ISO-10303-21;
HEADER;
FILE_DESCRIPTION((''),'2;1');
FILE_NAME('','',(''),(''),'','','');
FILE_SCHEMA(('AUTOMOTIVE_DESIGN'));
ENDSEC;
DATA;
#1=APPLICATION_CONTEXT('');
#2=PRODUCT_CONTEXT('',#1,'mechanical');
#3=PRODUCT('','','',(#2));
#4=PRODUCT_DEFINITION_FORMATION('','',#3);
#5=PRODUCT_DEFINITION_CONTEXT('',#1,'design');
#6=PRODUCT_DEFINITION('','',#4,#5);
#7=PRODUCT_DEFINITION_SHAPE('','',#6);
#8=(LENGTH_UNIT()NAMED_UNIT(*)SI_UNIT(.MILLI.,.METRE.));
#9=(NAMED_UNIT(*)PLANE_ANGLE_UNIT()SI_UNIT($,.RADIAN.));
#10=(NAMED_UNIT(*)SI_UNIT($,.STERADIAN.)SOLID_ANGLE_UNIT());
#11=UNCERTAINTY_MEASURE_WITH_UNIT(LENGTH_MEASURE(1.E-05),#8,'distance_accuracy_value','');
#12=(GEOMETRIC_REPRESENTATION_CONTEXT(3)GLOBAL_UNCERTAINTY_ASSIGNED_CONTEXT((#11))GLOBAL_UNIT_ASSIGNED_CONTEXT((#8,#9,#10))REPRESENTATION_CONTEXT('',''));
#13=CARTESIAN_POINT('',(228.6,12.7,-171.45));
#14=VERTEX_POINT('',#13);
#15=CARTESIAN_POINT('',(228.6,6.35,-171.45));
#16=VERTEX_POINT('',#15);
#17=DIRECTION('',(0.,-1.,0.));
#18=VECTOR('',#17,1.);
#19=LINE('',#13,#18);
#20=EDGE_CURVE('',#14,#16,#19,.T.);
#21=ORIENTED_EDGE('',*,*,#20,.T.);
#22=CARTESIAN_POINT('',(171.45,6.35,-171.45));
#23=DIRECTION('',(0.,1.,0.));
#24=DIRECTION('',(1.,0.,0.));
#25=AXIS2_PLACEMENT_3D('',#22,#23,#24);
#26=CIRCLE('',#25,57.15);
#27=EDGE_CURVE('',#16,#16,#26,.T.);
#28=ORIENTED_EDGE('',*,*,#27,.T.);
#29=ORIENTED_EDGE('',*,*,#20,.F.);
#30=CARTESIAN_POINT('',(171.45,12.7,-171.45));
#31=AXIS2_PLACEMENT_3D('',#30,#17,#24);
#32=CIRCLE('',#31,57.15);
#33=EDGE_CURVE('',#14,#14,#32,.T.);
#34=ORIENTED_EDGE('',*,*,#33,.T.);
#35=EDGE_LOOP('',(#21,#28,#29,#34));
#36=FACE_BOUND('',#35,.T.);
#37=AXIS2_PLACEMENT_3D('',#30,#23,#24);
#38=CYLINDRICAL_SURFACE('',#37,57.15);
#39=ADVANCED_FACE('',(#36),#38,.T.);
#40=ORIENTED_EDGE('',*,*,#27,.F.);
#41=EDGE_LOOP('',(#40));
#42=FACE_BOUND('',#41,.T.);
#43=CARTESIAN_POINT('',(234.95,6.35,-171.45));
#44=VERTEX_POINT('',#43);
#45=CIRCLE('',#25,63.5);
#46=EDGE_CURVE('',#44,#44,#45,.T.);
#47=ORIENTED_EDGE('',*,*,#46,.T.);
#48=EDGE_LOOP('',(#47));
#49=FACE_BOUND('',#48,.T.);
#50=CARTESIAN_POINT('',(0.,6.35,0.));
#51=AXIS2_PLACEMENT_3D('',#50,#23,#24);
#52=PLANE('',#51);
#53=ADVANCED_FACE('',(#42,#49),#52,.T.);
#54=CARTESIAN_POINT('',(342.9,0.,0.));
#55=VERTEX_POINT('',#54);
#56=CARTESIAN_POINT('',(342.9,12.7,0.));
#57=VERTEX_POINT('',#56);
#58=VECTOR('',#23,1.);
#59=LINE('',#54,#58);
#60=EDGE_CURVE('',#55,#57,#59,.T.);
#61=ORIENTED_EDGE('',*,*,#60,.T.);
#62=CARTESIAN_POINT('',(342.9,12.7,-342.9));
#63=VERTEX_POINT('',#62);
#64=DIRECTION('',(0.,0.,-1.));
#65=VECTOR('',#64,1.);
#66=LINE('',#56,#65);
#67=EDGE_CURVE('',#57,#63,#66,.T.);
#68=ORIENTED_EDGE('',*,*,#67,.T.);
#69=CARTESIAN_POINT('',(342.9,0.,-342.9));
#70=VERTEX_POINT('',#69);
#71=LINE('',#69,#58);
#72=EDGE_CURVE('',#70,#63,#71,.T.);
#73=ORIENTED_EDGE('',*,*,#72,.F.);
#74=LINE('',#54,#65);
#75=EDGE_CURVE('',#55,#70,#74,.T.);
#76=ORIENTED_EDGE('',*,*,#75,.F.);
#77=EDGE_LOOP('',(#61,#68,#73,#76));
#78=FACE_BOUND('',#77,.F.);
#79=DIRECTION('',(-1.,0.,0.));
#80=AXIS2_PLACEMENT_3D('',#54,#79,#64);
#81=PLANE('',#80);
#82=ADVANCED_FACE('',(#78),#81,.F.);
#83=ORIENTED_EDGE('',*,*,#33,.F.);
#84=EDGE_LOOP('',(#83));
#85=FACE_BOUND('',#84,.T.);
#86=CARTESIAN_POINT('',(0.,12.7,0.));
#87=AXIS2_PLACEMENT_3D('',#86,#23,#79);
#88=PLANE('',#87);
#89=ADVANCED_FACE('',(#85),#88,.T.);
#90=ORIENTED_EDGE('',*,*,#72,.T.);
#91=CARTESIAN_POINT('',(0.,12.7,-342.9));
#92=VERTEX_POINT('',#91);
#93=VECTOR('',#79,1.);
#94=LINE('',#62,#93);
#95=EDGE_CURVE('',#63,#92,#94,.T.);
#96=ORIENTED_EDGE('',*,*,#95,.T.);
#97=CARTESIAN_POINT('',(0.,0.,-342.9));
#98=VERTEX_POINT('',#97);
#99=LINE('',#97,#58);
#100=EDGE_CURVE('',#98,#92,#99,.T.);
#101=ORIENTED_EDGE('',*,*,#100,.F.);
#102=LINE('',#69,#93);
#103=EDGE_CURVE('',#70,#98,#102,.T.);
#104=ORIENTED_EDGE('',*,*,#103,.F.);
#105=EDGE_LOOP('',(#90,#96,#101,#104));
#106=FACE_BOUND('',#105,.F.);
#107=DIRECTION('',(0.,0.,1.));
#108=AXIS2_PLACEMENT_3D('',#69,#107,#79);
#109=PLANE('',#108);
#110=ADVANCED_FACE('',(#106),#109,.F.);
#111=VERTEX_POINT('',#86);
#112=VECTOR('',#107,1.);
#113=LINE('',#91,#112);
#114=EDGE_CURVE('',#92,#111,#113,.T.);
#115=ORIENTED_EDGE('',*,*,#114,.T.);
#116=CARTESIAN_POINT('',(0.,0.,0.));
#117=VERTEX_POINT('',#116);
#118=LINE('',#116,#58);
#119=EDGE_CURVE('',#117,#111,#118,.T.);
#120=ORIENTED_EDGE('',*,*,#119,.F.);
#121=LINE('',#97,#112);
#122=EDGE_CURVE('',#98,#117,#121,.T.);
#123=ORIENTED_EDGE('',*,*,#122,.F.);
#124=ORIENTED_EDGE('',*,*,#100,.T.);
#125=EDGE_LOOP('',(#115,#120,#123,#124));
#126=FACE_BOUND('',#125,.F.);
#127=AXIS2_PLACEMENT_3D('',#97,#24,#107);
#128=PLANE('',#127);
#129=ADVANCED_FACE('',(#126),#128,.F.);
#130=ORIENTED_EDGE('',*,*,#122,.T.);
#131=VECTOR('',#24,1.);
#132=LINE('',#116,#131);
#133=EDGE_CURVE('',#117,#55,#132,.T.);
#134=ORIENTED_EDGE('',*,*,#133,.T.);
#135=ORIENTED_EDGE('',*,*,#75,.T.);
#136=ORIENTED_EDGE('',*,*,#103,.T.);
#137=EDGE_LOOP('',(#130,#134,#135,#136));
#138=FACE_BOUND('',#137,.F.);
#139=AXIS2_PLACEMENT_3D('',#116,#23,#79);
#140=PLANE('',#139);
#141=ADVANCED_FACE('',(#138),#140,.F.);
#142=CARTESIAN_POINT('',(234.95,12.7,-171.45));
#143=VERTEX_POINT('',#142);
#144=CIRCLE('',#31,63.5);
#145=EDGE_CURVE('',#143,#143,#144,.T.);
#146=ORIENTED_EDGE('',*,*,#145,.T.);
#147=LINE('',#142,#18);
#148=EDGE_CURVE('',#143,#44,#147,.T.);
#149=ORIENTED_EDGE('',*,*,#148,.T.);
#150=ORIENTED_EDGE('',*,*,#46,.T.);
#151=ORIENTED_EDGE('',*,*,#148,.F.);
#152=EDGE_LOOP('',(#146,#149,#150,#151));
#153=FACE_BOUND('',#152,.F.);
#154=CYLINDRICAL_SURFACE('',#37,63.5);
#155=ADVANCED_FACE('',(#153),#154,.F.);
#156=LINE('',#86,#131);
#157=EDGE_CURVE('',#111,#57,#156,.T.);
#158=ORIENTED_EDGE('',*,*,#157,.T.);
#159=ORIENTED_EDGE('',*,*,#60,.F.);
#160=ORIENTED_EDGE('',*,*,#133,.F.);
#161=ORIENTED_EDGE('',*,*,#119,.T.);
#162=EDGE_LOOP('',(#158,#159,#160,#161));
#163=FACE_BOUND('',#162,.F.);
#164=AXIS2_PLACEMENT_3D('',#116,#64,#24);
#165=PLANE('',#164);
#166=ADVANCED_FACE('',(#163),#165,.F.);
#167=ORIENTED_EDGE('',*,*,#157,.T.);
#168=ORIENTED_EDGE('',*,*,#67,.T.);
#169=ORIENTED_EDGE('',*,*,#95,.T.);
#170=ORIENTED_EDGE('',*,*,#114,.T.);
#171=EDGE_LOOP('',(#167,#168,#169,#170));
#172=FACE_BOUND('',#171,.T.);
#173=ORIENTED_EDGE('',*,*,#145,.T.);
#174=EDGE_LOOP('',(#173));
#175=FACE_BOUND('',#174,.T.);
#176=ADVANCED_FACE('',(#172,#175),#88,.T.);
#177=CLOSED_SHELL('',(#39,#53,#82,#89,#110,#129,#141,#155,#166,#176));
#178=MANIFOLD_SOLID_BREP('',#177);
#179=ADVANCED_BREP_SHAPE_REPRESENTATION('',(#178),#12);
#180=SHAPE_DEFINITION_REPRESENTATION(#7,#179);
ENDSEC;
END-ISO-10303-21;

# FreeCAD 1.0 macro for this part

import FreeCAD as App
import Part
import Sketcher

V = App.Vector
Q = App.Units.Quantity


def add_polygon(sketch, points):
    """Adds a closed chain of lines whose ends are joined by coincident constraints."""
    first, n = sketch.GeometryCount, len(points)
    for a, b in zip(points, points[1:] + points[:1]):
        sketch.addGeometry(Part.LineSegment(App.Vector(*a, 0), App.Vector(*b, 0)), False)
    for i in range(n):
        sketch.addConstraint(Sketcher.Constraint("Coincident", first + i, 2, first + (i + 1) % n, 1))

doc = App.newDocument("Part")
body = doc.addObject("PartDesign::Body", "Body")

# Sketch on XZ plane
sketch1 = body.newObject("Sketcher::SketchObject", "Sketch")
sketch1.AttachmentSupport = (doc.getObject("XZ_Plane"), [""])
sketch1.MapMode = "FlatFace"
add_polygon(sketch1, [(0, -343), (0, 0), (343, 0), (343, -343)])  # lines 0-3
sketch1.addConstraint([
    Sketcher.Constraint("Vertical", 0),
    Sketcher.Constraint("Horizontal", 1),
    Sketcher.Constraint("Vertical", 2),
    Sketcher.Constraint("Horizontal", 3),
    Sketcher.Constraint("Coincident", 0, 2, -1, 1),
    Sketcher.Constraint("Equal", 3, 0),
    Sketcher.Constraint("DistanceX", 1, 1, 1, 2, Q("13.5 in")),
])
pad1 = body.newObject("PartDesign::Pad", "Pad")
pad1.Profile = sketch1
pad1.Length = Q("0.5 in")
pad1.Reversed = True

# Sketch on XZ plane
sketch2 = body.newObject("Sketcher::SketchObject", "Sketch001")
sketch2.AttachmentSupport = (doc.getObject("XZ_Plane"), [""])
sketch2.MapMode = "FlatFace"
sketch2.AttachmentOffset = App.Placement(V(0, 0, -0.5 * 25.4), App.Rotation())
sketch2.addGeometry([
    Part.Circle(V(171, -171, 0), V(0, 0, 1), 64),
    Part.Circle(V(171, -171, 0), V(0, 0, 1), 57),
], False)
sketch2.addConstraint([
    Sketcher.Constraint("Coincident", 1, 3, 0, 3),
    Sketcher.Constraint("Diameter", 1, Q("4.5 in")),
    Sketcher.Constraint("Diameter", 0, Q("5 in")),
    Sketcher.Constraint("DistanceX", -1, 1, 0, 3, Q("6.75 in")),
    Sketcher.Constraint("DistanceY", 0, 3, -1, 1, Q("6.75 in")),
])
pocket1 = body.newObject("PartDesign::Pocket", "Pocket")
pocket1.Profile = sketch2
pocket1.Length = Q("0.25 in")
pocket1.Reversed = True

doc.recompute()
